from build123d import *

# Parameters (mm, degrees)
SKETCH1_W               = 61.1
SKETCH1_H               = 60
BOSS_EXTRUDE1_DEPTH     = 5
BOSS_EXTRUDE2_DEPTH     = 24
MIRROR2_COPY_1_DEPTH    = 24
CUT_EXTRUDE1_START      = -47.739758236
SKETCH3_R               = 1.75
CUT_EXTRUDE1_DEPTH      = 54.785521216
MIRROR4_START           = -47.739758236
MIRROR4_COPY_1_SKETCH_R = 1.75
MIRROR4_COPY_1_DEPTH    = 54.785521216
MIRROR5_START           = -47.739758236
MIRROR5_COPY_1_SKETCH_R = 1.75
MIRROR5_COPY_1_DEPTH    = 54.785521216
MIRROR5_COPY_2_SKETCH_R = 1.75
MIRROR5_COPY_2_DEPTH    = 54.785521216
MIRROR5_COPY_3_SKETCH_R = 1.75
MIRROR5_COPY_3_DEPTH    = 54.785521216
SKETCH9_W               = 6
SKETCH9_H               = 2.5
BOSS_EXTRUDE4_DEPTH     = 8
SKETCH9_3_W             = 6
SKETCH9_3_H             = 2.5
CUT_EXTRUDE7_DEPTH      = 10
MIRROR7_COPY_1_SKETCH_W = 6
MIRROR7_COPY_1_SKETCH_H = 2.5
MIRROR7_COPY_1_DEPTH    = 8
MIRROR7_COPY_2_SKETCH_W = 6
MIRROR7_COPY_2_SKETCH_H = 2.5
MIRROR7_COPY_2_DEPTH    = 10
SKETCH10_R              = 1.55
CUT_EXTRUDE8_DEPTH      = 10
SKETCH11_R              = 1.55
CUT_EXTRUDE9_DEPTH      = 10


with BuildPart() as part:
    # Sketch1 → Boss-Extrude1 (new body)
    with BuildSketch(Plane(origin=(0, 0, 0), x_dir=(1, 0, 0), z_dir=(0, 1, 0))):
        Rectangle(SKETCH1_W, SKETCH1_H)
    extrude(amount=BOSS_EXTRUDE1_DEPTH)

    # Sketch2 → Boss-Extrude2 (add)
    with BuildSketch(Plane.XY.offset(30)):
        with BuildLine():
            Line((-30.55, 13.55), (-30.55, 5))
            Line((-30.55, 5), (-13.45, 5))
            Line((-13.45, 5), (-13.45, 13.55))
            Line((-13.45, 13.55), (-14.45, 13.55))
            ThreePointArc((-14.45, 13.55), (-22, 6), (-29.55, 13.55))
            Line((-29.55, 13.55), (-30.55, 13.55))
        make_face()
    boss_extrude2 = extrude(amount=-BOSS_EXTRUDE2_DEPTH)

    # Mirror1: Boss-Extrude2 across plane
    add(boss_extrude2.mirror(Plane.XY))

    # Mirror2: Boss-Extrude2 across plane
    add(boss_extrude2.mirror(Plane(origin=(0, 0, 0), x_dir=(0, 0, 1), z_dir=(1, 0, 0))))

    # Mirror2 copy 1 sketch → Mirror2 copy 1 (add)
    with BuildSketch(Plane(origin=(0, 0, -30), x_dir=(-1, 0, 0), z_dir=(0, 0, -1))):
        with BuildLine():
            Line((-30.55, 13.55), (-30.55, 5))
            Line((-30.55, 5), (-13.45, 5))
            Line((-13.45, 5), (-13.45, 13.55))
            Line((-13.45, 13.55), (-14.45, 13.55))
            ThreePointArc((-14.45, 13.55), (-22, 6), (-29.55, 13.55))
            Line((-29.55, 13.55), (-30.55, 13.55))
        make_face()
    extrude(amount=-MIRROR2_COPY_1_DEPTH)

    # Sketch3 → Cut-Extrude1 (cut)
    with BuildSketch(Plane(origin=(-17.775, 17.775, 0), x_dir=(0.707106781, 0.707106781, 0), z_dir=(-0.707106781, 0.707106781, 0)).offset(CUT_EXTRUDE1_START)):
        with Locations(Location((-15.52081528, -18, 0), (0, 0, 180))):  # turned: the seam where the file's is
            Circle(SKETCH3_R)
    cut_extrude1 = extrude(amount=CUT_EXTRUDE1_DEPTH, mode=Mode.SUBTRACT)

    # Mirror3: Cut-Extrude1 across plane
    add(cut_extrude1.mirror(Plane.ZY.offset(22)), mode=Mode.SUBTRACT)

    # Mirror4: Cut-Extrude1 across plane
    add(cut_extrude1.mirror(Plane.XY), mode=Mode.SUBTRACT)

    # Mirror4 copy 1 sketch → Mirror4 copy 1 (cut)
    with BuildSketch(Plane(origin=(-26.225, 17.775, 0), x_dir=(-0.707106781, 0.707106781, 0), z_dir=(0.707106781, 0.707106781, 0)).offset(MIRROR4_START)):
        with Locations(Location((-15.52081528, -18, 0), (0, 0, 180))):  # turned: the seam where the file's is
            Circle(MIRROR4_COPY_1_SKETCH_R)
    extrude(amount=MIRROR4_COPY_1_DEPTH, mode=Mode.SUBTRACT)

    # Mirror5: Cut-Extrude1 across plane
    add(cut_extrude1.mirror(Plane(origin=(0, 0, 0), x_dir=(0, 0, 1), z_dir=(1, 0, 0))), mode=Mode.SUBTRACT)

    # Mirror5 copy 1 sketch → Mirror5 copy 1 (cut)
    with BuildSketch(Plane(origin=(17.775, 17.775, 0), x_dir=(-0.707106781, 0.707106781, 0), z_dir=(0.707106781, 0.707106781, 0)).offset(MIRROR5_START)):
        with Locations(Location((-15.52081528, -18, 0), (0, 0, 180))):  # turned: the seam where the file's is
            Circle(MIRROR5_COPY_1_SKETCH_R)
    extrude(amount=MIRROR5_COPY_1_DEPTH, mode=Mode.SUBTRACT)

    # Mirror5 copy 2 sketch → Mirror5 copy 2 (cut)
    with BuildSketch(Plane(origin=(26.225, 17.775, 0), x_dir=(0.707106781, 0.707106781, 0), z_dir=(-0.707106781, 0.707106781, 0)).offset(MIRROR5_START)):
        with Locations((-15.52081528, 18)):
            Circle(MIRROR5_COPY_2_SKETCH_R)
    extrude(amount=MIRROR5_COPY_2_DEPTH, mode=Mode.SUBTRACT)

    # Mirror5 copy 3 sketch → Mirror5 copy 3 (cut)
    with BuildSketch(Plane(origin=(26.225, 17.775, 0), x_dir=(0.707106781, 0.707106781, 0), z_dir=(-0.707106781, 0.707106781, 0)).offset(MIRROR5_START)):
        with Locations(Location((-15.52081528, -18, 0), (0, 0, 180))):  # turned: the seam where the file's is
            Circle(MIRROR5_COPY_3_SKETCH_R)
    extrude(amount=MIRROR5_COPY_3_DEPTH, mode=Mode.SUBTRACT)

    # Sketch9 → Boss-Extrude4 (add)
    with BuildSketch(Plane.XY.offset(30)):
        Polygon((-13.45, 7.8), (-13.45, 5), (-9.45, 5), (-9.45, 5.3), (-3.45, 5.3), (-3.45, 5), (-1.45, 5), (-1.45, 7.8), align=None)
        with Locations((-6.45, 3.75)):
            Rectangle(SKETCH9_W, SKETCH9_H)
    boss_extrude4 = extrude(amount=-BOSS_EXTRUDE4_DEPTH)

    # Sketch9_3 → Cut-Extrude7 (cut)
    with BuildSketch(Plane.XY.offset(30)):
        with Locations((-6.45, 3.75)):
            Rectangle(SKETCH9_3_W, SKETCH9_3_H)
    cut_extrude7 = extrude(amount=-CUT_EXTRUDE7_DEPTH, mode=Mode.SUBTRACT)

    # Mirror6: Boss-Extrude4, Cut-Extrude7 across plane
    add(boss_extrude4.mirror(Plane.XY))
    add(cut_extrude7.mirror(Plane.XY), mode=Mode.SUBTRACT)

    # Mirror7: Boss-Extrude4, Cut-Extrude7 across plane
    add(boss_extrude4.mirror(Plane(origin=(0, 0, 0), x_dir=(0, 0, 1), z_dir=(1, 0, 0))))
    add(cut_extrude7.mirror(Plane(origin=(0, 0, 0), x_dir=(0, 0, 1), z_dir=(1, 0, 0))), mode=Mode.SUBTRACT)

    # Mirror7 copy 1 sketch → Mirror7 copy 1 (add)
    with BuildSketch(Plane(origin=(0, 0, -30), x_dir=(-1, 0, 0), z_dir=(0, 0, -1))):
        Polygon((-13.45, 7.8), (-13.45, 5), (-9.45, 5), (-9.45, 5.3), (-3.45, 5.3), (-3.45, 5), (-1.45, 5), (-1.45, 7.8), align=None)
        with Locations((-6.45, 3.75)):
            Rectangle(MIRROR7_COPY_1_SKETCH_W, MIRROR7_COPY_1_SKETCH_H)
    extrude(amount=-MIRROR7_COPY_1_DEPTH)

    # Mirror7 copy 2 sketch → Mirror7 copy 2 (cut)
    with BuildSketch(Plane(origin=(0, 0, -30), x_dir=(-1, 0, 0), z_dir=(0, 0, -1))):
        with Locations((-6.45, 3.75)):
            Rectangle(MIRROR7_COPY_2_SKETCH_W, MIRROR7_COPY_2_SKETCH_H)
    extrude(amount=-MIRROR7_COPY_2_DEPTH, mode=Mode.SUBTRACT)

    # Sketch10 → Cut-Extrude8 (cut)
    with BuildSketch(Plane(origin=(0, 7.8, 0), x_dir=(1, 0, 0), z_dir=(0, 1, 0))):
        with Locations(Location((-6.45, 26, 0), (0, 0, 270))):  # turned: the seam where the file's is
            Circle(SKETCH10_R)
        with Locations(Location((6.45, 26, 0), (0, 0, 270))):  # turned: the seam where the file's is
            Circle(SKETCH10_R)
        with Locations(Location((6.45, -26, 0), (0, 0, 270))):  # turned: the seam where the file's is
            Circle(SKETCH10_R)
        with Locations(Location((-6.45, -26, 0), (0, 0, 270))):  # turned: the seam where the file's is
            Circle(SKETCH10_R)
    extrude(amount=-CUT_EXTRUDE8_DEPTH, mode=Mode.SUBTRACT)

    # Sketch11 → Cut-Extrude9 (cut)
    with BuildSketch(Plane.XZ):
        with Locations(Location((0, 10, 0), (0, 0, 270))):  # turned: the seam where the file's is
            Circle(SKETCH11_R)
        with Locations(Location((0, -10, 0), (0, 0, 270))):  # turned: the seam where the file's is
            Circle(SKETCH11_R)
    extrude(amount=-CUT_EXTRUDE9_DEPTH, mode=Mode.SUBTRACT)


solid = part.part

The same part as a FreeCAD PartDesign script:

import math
import FreeCAD as App
import Part
import Sketcher
from FreeCAD import Vector
Q = App.Units.Quantity


def add_polygon(sketch, points):
    """Adds a closed chain of lines whose ends are joined by coincident constraints."""
    first, n = sketch.GeometryCount, len(points)
    for a, b in zip(points, points[1:] + points[:1]):
        sketch.addGeometry(Part.LineSegment(App.Vector(*a, 0), App.Vector(*b, 0)), False)
    for i in range(n):
        sketch.addConstraint(Sketcher.Constraint("Coincident", first + i, 2, first + (i + 1) % n, 1))

doc = App.newDocument("Part")
params = doc.addObject("Spreadsheet::Sheet", "Params")
for row, (alias, value) in enumerate([
    ("sketch1_height", "60 mm"),
    ("sketch1_width", "61.1 mm"),
    ("pad1_length", "5 mm"),
    ("sketch2_width", "1 mm"),
    ("sketch2_radius", "7.55 mm"),
    ("sketch2_height", "8.55 mm"),
    ("pad2_length", "24 mm"),
    ("sketch3_width", "1 mm"),
    ("sketch3_radius", "7.55 mm"),
    ("sketch3_height", "8.55 mm"),
    ("pad3_length", "24 mm"),
    ("sketch4_diameter", "3.5 mm"),
    ("pocket1_length", "54.785521 mm"),
    ("sketch5_diameter", "3.5 mm"),
    ("pocket2_length", "54.785521 mm"),
    ("sketch6_diameter", "3.5 mm"),
    ("pocket3_length", "54.785521 mm"),
    ("sketch7_diameter", "3.5 mm"),
    ("pocket4_length", "54.785521 mm"),
    ("sketch8_diameter", "3.5 mm"),
    ("pocket5_length", "54.785521 mm"),
    ("sketch9_width", "4 mm"),
    ("sketch9_width2", "6 mm"),
    ("sketch9_width3", "2 mm"),
    ("sketch9_height", "2.8 mm"),
    ("sketch9_height2", "0.3 mm"),
    ("pad4_length", "8 mm"),
    ("sketch10_width", "6 mm"),
    ("sketch10_height", "2.5 mm"),
    ("pocket6_length", "10 mm"),
    ("sketch11_width", "4 mm"),
    ("sketch11_width2", "6 mm"),
    ("sketch11_width3", "2 mm"),
    ("sketch11_height", "2.8 mm"),
    ("sketch11_height2", "0.3 mm"),
    ("pad5_length", "8 mm"),
    ("sketch12_width", "6 mm"),
    ("sketch12_height", "2.5 mm"),
    ("pocket7_length", "10 mm"),
    ("sketch13_diameter", "3.1 mm"),
    ("pocket8_length", "10 mm"),
    ("sketch14_diameter", "3.1 mm"),
    ("pocket9_length", "10 mm"),
], start=1):
    params.set(f"A{row}", alias)
    params.set(f"B{row}", "=" + value)
    params.setAlias(f"B{row}", alias)

body = doc.addObject("PartDesign::Body", "Body")

# Sketch on XZ plane
sketch1 = body.newObject("Sketcher::SketchObject", "Sketch")
sketch1.AttachmentSupport = (doc.getObject("XZ_Plane"), [""])
sketch1.MapMode = "FlatFace"
add_polygon(sketch1, [(-30.55, -30), (-30.55, 30), (30.55, 30), (30.55, -30)])  # lines 0-3
sketch1.addConstraint([
    Sketcher.Constraint("Vertical", 0),
    Sketcher.Constraint("Horizontal", 1),
    Sketcher.Constraint("Vertical", 2),
    Sketcher.Constraint("Horizontal", 3),
    Sketcher.Constraint("Symmetric", 0, 2, 2, 2, -1, 1),
    Sketcher.Constraint("DistanceY", 0, 1, 0, 2, Q("60 mm")),
    Sketcher.Constraint("DistanceX", 1, 1, 1, 2, Q("61.1 mm")),
])
sketch1.setExpression("Constraints[9]", "Params.sketch1_height")
sketch1.setExpression("Constraints[10]", "Params.sketch1_width")
pad1 = body.newObject("PartDesign::Pad", "Pad")
pad1.Profile = sketch1
pad1.setExpression("Length", "Params.pad1_length")
pad1.Reversed = True

# Sketch on XY plane
sketch2 = body.newObject("Sketcher::SketchObject", "Sketch001")
sketch2.AttachmentSupport = (doc.getObject("XY_Plane"), [""])
sketch2.MapMode = "FlatFace"
sketch2.AttachmentOffset = App.Placement(Vector(0, 0, 30), App.Rotation())
sketch2.addGeometry([
    Part.LineSegment(Vector(-30.55, 13.55, 0), Vector(-30.55, 5, 0)),  # 0
    Part.LineSegment(Vector(-30.55, 5, 0), Vector(-13.45, 5, 0)),  # 1
    Part.LineSegment(Vector(-13.45, 5, 0), Vector(-13.45, 13.55, 0)),  # 2
    Part.LineSegment(Vector(-13.45, 13.55, 0), Vector(-14.45, 13.55, 0)),  # 3
    Part.ArcOfCircle(Part.Circle(Vector(-22, 13.55, 0), Vector(0, 0, 1), 7.55), math.radians(180), math.radians(360)),  # 4
    Part.LineSegment(Vector(-29.55, 13.55, 0), Vector(-30.55, 13.55, 0)),  # 5
], False)
sketch2.addConstraint([
    Sketcher.Constraint("Coincident", 0, 2, 1, 1),
    Sketcher.Constraint("Coincident", 1, 2, 2, 1),
    Sketcher.Constraint("Coincident", 2, 2, 3, 1),
    Sketcher.Constraint("Coincident", 3, 2, 4, 2),
    Sketcher.Constraint("Coincident", 4, 1, 5, 1),
    Sketcher.Constraint("Coincident", 5, 2, 0, 1),
    Sketcher.Constraint("Vertical", 0),
    Sketcher.Constraint("Horizontal", 1),
    Sketcher.Constraint("Vertical", 2),
    Sketcher.Constraint("Horizontal", 3),
    Sketcher.Constraint("Horizontal", 5),
    Sketcher.Constraint("Horizontal", 4, 3, 2, 2),
    Sketcher.Constraint("Horizontal", 3, 2, 4, 1),
    Sketcher.Constraint("Equal", 3, 5),
    Sketcher.Constraint("DistanceX", 3, 2, 3, 1, Q("1 mm")),
    Sketcher.Constraint("Radius", 4, Q("7.55 mm")),
    Sketcher.Constraint("DistanceX", 4, 3, -1, 1, Q("22 mm")),
    Sketcher.Constraint("DistanceY", -1, 1, 0, 2, Q("5 mm")),
    Sketcher.Constraint("DistanceY", 0, 2, 0, 1, Q("8.55 mm")),
])
sketch2.setExpression("Constraints[14]", "Params.sketch2_width")
sketch2.setExpression("Constraints[15]", "Params.sketch2_radius")
sketch2.setExpression("Constraints[18]", "Params.sketch2_height")
pad2 = body.newObject("PartDesign::Pad", "Pad001")
pad2.Profile = sketch2
pad2.setExpression("Length", "Params.pad2_length")
pad2.Reversed = True
doc.recompute()

mirrored = body.newObject("PartDesign::Mirrored", "Mirrored")
mirrored.Originals = [pad2]
mirrored.MirrorPlane = (doc.getObject("XY_Plane"), [""])
body.Tip = mirrored
doc.recompute()

mirrored2 = body.newObject("PartDesign::Mirrored", "Mirrored001")
mirrored2.Originals = [pad2]
mirrored2.MirrorPlane = (doc.getObject("YZ_Plane"), [""])
body.Tip = mirrored2

# Sketch on XY plane
sketch3 = body.newObject("Sketcher::SketchObject", "Sketch002")
sketch3.AttachmentSupport = (doc.getObject("XY_Plane"), [""])
sketch3.MapMode = "FlatFace"
sketch3.AttachmentOffset = App.Placement(Vector(0, 0, -30), App.Rotation())
sketch3.addGeometry([
    Part.LineSegment(Vector(30.55, 13.55, 0), Vector(30.55, 5, 0)),  # 0
    Part.LineSegment(Vector(30.55, 5, 0), Vector(13.45, 5, 0)),  # 1
    Part.LineSegment(Vector(13.45, 5, 0), Vector(13.45, 13.55, 0)),  # 2
    Part.LineSegment(Vector(13.45, 13.55, 0), Vector(14.45, 13.55, 0)),  # 3
    Part.ArcOfCircle(Part.Circle(Vector(22, 13.55, 0), Vector(0, 0, 1), 7.55), math.radians(180), math.radians(360)),  # 4
    Part.LineSegment(Vector(29.55, 13.55, 0), Vector(30.55, 13.55, 0)),  # 5
], False)
sketch3.addConstraint([
    Sketcher.Constraint("Coincident", 0, 2, 1, 1),
    Sketcher.Constraint("Coincident", 1, 2, 2, 1),
    Sketcher.Constraint("Coincident", 2, 2, 3, 1),
    Sketcher.Constraint("Coincident", 3, 2, 4, 1),
    Sketcher.Constraint("Coincident", 4, 2, 5, 1),
    Sketcher.Constraint("Coincident", 5, 2, 0, 1),
    Sketcher.Constraint("Vertical", 0),
    Sketcher.Constraint("Horizontal", 1),
    Sketcher.Constraint("Vertical", 2),
    Sketcher.Constraint("Horizontal", 3),
    Sketcher.Constraint("Horizontal", 5),
    Sketcher.Constraint("Horizontal", 4, 3, 2, 2),
    Sketcher.Constraint("Horizontal", 3, 2, 4, 2),
    Sketcher.Constraint("Equal", 3, 5),
    Sketcher.Constraint("DistanceX", 3, 1, 3, 2, Q("1 mm")),
    Sketcher.Constraint("Radius", 4, Q("7.55 mm")),
    Sketcher.Constraint("DistanceX", -1, 1, 4, 3, Q("22 mm")),
    Sketcher.Constraint("DistanceY", -1, 1, 0, 2, Q("5 mm")),
    Sketcher.Constraint("DistanceY", 0, 2, 0, 1, Q("8.55 mm")),
])
sketch3.setExpression("Constraints[14]", "Params.sketch3_width")
sketch3.setExpression("Constraints[15]", "Params.sketch3_radius")
sketch3.setExpression("Constraints[18]", "Params.sketch3_height")
pad3 = body.newObject("PartDesign::Pad", "Pad002")
pad3.Profile = sketch3
pad3.setExpression("Length", "Params.pad3_length")

# Sketch on an angled plane
sketch4 = body.newObject("Sketcher::SketchObject", "Sketch003")
sketch4.Placement = App.Placement(Vector(15.982107, -15.982107, 0), App.Rotation(Vector(0.707106781, 0.707106781, 0), Vector(0, 0, -0.999999999), Vector(-0.707106781, 0.707106781, 0), "ZXY"))
sketch4.addGeometry(Part.Circle(Vector(-15.520815, -18, 0), Vector(0, 0, 1), 1.75), False)
sketch4.addConstraint([
    Sketcher.Constraint("Diameter", 0, Q("3.5 mm")),
    Sketcher.Constraint("DistanceY", 0, 3, -1, 1, Q("18 mm")),
    Sketcher.Constraint("DistanceX", 0, 3, -1, 1, Q("15.520815 mm")),
])
sketch4.setExpression("Constraints[0]", "Params.sketch4_diameter")
pocket1 = body.newObject("PartDesign::Pocket", "Pocket")
pocket1.Profile = sketch4
pocket1.setExpression("Length", "Params.pocket1_length")
pocket1.Reversed = True
doc.recompute()

datumplane = body.newObject("PartDesign::Plane", "DatumPlane")
datumplane.AttachmentSupport = (doc.getObject("YZ_Plane"), [""])
datumplane.MapMode = "FlatFace"
datumplane.AttachmentOffset = App.Placement(Vector(0, 0, -22), App.Rotation())
mirrored3 = body.newObject("PartDesign::Mirrored", "Mirrored002")
mirrored3.Originals = [pocket1]
mirrored3.MirrorPlane = (datumplane, [""])
body.Tip = mirrored3
doc.recompute()

mirrored4 = body.newObject("PartDesign::Mirrored", "Mirrored003")
mirrored4.Originals = [pocket1]
mirrored4.MirrorPlane = (doc.getObject("XY_Plane"), [""])
body.Tip = mirrored4

# Sketch on an angled plane
sketch5 = body.newObject("Sketcher::SketchObject", "Sketch004")
sketch5.Placement = App.Placement(Vector(-59.982107, -15.982107, 0), App.Rotation(Vector(-0.707106781, 0.707106781, 0), Vector(0, 0, 0.999999999), Vector(0.707106781, 0.707106781, 0), "ZXY"))
sketch5.addGeometry(Part.Circle(Vector(-15.520815, -18, 0), Vector(0, 0, 1), 1.75), False)
sketch5.addConstraint([
    Sketcher.Constraint("Diameter", 0, Q("3.5 mm")),
    Sketcher.Constraint("DistanceY", 0, 3, -1, 1, Q("18 mm")),
    Sketcher.Constraint("DistanceX", 0, 3, -1, 1, Q("15.520815 mm")),
])
sketch5.setExpression("Constraints[0]", "Params.sketch5_diameter")
pocket2 = body.newObject("PartDesign::Pocket", "Pocket001")
pocket2.Profile = sketch5
pocket2.setExpression("Length", "Params.pocket2_length")
pocket2.Reversed = True
doc.recompute()

mirrored5 = body.newObject("PartDesign::Mirrored", "Mirrored004")
mirrored5.Originals = [pocket1]
mirrored5.MirrorPlane = (doc.getObject("YZ_Plane"), [""])
body.Tip = mirrored5

# Sketch on an angled plane
sketch6 = body.newObject("Sketcher::SketchObject", "Sketch005")
sketch6.Placement = App.Placement(Vector(-15.982107, -15.982107, 0), App.Rotation(Vector(-0.707106781, 0.707106781, 0), Vector(0, 0, 0.999999999), Vector(0.707106781, 0.707106781, 0), "ZXY"))
sketch6.addGeometry(Part.Circle(Vector(-15.520815, -18, 0), Vector(0, 0, 1), 1.75), False)
sketch6.addConstraint([
    Sketcher.Constraint("Diameter", 0, Q("3.5 mm")),
    Sketcher.Constraint("DistanceY", 0, 3, -1, 1, Q("18 mm")),
    Sketcher.Constraint("DistanceX", 0, 3, -1, 1, Q("15.520815 mm")),
])
sketch6.setExpression("Constraints[0]", "Params.sketch6_diameter")
pocket3 = body.newObject("PartDesign::Pocket", "Pocket002")
pocket3.Profile = sketch6
pocket3.setExpression("Length", "Params.pocket3_length")
pocket3.Reversed = True

# Sketch on an angled plane
sketch7 = body.newObject("Sketcher::SketchObject", "Sketch006")
sketch7.Placement = App.Placement(Vector(59.982107, -15.982107, 0), App.Rotation(Vector(0.707106781, 0.707106781, 0), Vector(0, 0, -0.999999999), Vector(-0.707106781, 0.707106781, 0), "ZXY"))
sketch7.addGeometry(Part.Circle(Vector(-15.520815, 18, 0), Vector(0, 0, 1), 1.75), False)
sketch7.addConstraint([
    Sketcher.Constraint("Diameter", 0, Q("3.5 mm")),
    Sketcher.Constraint("DistanceY", -1, 1, 0, 3, Q("18 mm")),
    Sketcher.Constraint("DistanceX", 0, 3, -1, 1, Q("15.520815 mm")),
])
sketch7.setExpression("Constraints[0]", "Params.sketch7_diameter")
pocket4 = body.newObject("PartDesign::Pocket", "Pocket003")
pocket4.Profile = sketch7
pocket4.setExpression("Length", "Params.pocket4_length")
pocket4.Reversed = True

# Sketch on an angled plane
sketch8 = body.newObject("Sketcher::SketchObject", "Sketch007")
sketch8.Placement = App.Placement(Vector(59.982107, -15.982107, 0), App.Rotation(Vector(0.707106781, 0.707106781, 0), Vector(0, 0, -0.999999999), Vector(-0.707106781, 0.707106781, 0), "ZXY"))
sketch8.addGeometry(Part.Circle(Vector(-15.520815, -18, 0), Vector(0, 0, 1), 1.75), False)
sketch8.addConstraint([
    Sketcher.Constraint("Diameter", 0, Q("3.5 mm")),
    Sketcher.Constraint("DistanceY", 0, 3, -1, 1, Q("18 mm")),
    Sketcher.Constraint("DistanceX", 0, 3, -1, 1, Q("15.520815 mm")),
])
sketch8.setExpression("Constraints[0]", "Params.sketch8_diameter")
pocket5 = body.newObject("PartDesign::Pocket", "Pocket004")
pocket5.Profile = sketch8
pocket5.setExpression("Length", "Params.pocket5_length")
pocket5.Reversed = True

# Sketch on XY plane
sketch9 = body.newObject("Sketcher::SketchObject", "Sketch008")
sketch9.AttachmentSupport = (doc.getObject("XY_Plane"), [""])
sketch9.MapMode = "FlatFace"
sketch9.AttachmentOffset = App.Placement(Vector(0, 0, 30), App.Rotation())
add_polygon(sketch9, [(-13.45, 7.8), (-13.45, 5), (-9.45, 5), (-9.45, 5.3), (-3.45, 5.3), (-3.45, 5), (-1.45, 5), (-1.45, 7.8)])  # lines 0-7
add_polygon(sketch9, [(-9.45, 5), (-9.45, 2.5), (-3.45, 2.5), (-3.45, 5)])  # lines 8-11
sketch9.addConstraint([
    Sketcher.Constraint("Vertical", 0),
    Sketcher.Constraint("Horizontal", 1),
    Sketcher.Constraint("Vertical", 2),
    Sketcher.Constraint("Horizontal", 3),
    Sketcher.Constraint("Vertical", 4),
    Sketcher.Constraint("Horizontal", 5),
    Sketcher.Constraint("Vertical", 6),
    Sketcher.Constraint("Horizontal", 7),
    Sketcher.Constraint("Vertical", 8),
    Sketcher.Constraint("Horizontal", 9),
    Sketcher.Constraint("Vertical", 10),
    Sketcher.Constraint("Horizontal", 11),
    Sketcher.Constraint("Coincident", 10, 2, 4, 2),
    Sketcher.Constraint("Coincident", 11, 2, 1, 2),
    Sketcher.Constraint("DistanceX", 1, 1, 1, 2, Q("4 mm")),
    Sketcher.Constraint("DistanceX", 3, 1, 3, 2, Q("6 mm")),
    Sketcher.Constraint("DistanceX", 5, 1, 5, 2, Q("2 mm")),
    Sketcher.Constraint("DistanceY", 0, 2, 0, 1, Q("2.8 mm")),
    Sketcher.Constraint("DistanceY", 2, 1, 2, 2, Q("0.3 mm")),
    Sketcher.Constraint("DistanceY", 8, 2, 8, 1, Q("2.5 mm")),
    Sketcher.Constraint("DistanceY", -1, 1, 0, 2, Q("5 mm")),
    Sketcher.Constraint("DistanceX", 0, 2, -1, 1, Q("13.45 mm")),
])
sketch9.setExpression("Constraints[26]", "Params.sketch9_width")
sketch9.setExpression("Constraints[27]", "Params.sketch9_width2")
sketch9.setExpression("Constraints[28]", "Params.sketch9_width3")
sketch9.setExpression("Constraints[29]", "Params.sketch9_height")
sketch9.setExpression("Constraints[30]", "Params.sketch9_height2")
pad4 = body.newObject("PartDesign::Pad", "Pad003")
pad4.Profile = sketch9
pad4.setExpression("Length", "Params.pad4_length")
pad4.Reversed = True

# Sketch on XY plane
sketch10 = body.newObject("Sketcher::SketchObject", "Sketch009")
sketch10.AttachmentSupport = (doc.getObject("XY_Plane"), [""])
sketch10.MapMode = "FlatFace"
sketch10.AttachmentOffset = App.Placement(Vector(0, 0, 30), App.Rotation())
add_polygon(sketch10, [(-9.45, 5), (-9.45, 2.5), (-3.45, 2.5), (-3.45, 5)])  # lines 0-3
sketch10.addConstraint([
    Sketcher.Constraint("Vertical", 0),
    Sketcher.Constraint("Horizontal", 1),
    Sketcher.Constraint("Vertical", 2),
    Sketcher.Constraint("Horizontal", 3),
    Sketcher.Constraint("DistanceX", 1, 1, 1, 2, Q("6 mm")),
    Sketcher.Constraint("DistanceY", 0, 2, 0, 1, Q("2.5 mm")),
    Sketcher.Constraint("DistanceY", -1, 1, 2, 2, Q("5 mm")),
    Sketcher.Constraint("DistanceX", 0, 2, -1, 1, Q("9.45 mm")),
])
sketch10.setExpression("Constraints[8]", "Params.sketch10_width")
sketch10.setExpression("Constraints[9]", "Params.sketch10_height")
pocket6 = body.newObject("PartDesign::Pocket", "Pocket005")
pocket6.Profile = sketch10
pocket6.setExpression("Length", "Params.pocket6_length")
doc.recompute()

mirrored6 = body.newObject("PartDesign::Mirrored", "Mirrored005")
mirrored6.Originals = [pad4, pocket6]
mirrored6.MirrorPlane = (doc.getObject("XY_Plane"), [""])
body.Tip = mirrored6
doc.recompute()

mirrored7 = body.newObject("PartDesign::Mirrored", "Mirrored006")
mirrored7.Originals = [pad4, pocket6]
mirrored7.MirrorPlane = (doc.getObject("YZ_Plane"), [""])
body.Tip = mirrored7

# Sketch on XY plane
sketch11 = body.newObject("Sketcher::SketchObject", "Sketch010")
sketch11.AttachmentSupport = (doc.getObject("XY_Plane"), [""])
sketch11.MapMode = "FlatFace"
sketch11.AttachmentOffset = App.Placement(Vector(0, 0, -30), App.Rotation())
add_polygon(sketch11, [(13.45, 7.8), (13.45, 5), (9.45, 5), (9.45, 5.3), (3.45, 5.3), (3.45, 5), (1.45, 5), (1.45, 7.8)])  # lines 0-7
add_polygon(sketch11, [(9.45, 5), (9.45, 2.5), (3.45, 2.5), (3.45, 5)])  # lines 8-11
sketch11.addConstraint([
    Sketcher.Constraint("Vertical", 0),
    Sketcher.Constraint("Horizontal", 1),
    Sketcher.Constraint("Vertical", 2),
    Sketcher.Constraint("Horizontal", 3),
    Sketcher.Constraint("Vertical", 4),
    Sketcher.Constraint("Horizontal", 5),
    Sketcher.Constraint("Vertical", 6),
    Sketcher.Constraint("Horizontal", 7),
    Sketcher.Constraint("Vertical", 8),
    Sketcher.Constraint("Horizontal", 9),
    Sketcher.Constraint("Vertical", 10),
    Sketcher.Constraint("Horizontal", 11),
    Sketcher.Constraint("Coincident", 10, 2, 4, 2),
    Sketcher.Constraint("Coincident", 11, 2, 1, 2),
    Sketcher.Constraint("DistanceX", 1, 2, 1, 1, Q("4 mm")),
    Sketcher.Constraint("DistanceX", 3, 2, 3, 1, Q("6 mm")),
    Sketcher.Constraint("DistanceX", 5, 2, 5, 1, Q("2 mm")),
    Sketcher.Constraint("DistanceY", 0, 2, 0, 1, Q("2.8 mm")),
    Sketcher.Constraint("DistanceY", 2, 1, 2, 2, Q("0.3 mm")),
    Sketcher.Constraint("DistanceY", 8, 2, 8, 1, Q("2.5 mm")),
    Sketcher.Constraint("DistanceY", -1, 1, 0, 2, Q("5 mm")),
    Sketcher.Constraint("DistanceX", -1, 1, 0, 2, Q("13.45 mm")),
])
sketch11.setExpression("Constraints[26]", "Params.sketch11_width")
sketch11.setExpression("Constraints[27]", "Params.sketch11_width2")
sketch11.setExpression("Constraints[28]", "Params.sketch11_width3")
sketch11.setExpression("Constraints[29]", "Params.sketch11_height")
sketch11.setExpression("Constraints[30]", "Params.sketch11_height2")
pad5 = body.newObject("PartDesign::Pad", "Pad004")
pad5.Profile = sketch11
pad5.setExpression("Length", "Params.pad5_length")

# Sketch on XY plane
sketch12 = body.newObject("Sketcher::SketchObject", "Sketch011")
sketch12.AttachmentSupport = (doc.getObject("XY_Plane"), [""])
sketch12.MapMode = "FlatFace"
sketch12.AttachmentOffset = App.Placement(Vector(0, 0, -30), App.Rotation())
add_polygon(sketch12, [(9.45, 5), (9.45, 2.5), (3.45, 2.5), (3.45, 5)])  # lines 0-3
sketch12.addConstraint([
    Sketcher.Constraint("Vertical", 0),
    Sketcher.Constraint("Horizontal", 1),
    Sketcher.Constraint("Vertical", 2),
    Sketcher.Constraint("Horizontal", 3),
    Sketcher.Constraint("DistanceX", 1, 2, 1, 1, Q("6 mm")),
    Sketcher.Constraint("DistanceY", 0, 2, 0, 1, Q("2.5 mm")),
    Sketcher.Constraint("DistanceY", -1, 1, 2, 2, Q("5 mm")),
    Sketcher.Constraint("DistanceX", -1, 1, 0, 2, Q("9.45 mm")),
])
sketch12.setExpression("Constraints[8]", "Params.sketch12_width")
sketch12.setExpression("Constraints[9]", "Params.sketch12_height")
pocket7 = body.newObject("PartDesign::Pocket", "Pocket006")
pocket7.Profile = sketch12
pocket7.setExpression("Length", "Params.pocket7_length")
pocket7.Reversed = True

# Sketch on XZ plane
sketch13 = body.newObject("Sketcher::SketchObject", "Sketch012")
sketch13.AttachmentSupport = (doc.getObject("XZ_Plane"), [""])
sketch13.MapMode = "FlatFace"
sketch13.AttachmentOffset = App.Placement(Vector(0, 0, -7.8), App.Rotation())
sketch13.addGeometry([
    Part.Circle(Vector(-6.45, -26, 0), Vector(0, 0, 1), 1.55),
    Part.Circle(Vector(6.45, -26, 0), Vector(0, 0, 1), 1.55),
    Part.Circle(Vector(6.45, 26, 0), Vector(0, 0, 1), 1.55),
    Part.Circle(Vector(-6.45, 26, 0), Vector(0, 0, 1), 1.55),
], False)
sketch13.addConstraint([
    Sketcher.Constraint("Equal", 0, 1),
    Sketcher.Constraint("Equal", 1, 2),
    Sketcher.Constraint("Equal", 2, 3),
    Sketcher.Constraint("Symmetric", 0, 3, 2, 3, -1, 1),
    Sketcher.Constraint("Symmetric", 1, 3, 3, 3, -1, 1),
    Sketcher.Constraint("Symmetric", 0, 3, 1, 3, -2),
    Sketcher.Constraint("Diameter", 0, Q("3.1 mm")),
    Sketcher.Constraint("DistanceY", 0, 3, -1, 1, Q("26 mm")),
    Sketcher.Constraint("DistanceX", 0, 3, 1, 3, Q("12.9 mm")),
])
sketch13.setExpression("Constraints[6]", "Params.sketch13_diameter")
pocket8 = body.newObject("PartDesign::Pocket", "Pocket007")
pocket8.Profile = sketch13
pocket8.setExpression("Length", "Params.pocket8_length")
pocket8.Reversed = True

# Sketch on XZ plane
sketch14 = body.newObject("Sketcher::SketchObject", "Sketch013")
sketch14.AttachmentSupport = (doc.getObject("XZ_Plane"), [""])
sketch14.MapMode = "FlatFace"
sketch14.addGeometry([
    Part.Circle(Vector(0, 10, 0), Vector(0, 0, 1), 1.55),
    Part.Circle(Vector(0, -10, 0), Vector(0, 0, 1), 1.55),
], False)
sketch14.addConstraint([
    Sketcher.Constraint("Equal", 0, 1),
    Sketcher.Constraint("Symmetric", 0, 3, 1, 3, -1, 1),
    Sketcher.Constraint("PointOnObject", 0, 3, -2),
    Sketcher.Constraint("Diameter", 0, Q("3.1 mm")),
    Sketcher.Constraint("DistanceY", -1, 1, 0, 3, Q("10 mm")),
])
sketch14.setExpression("Constraints[3]", "Params.sketch14_diameter")
pocket9 = body.newObject("PartDesign::Pocket", "Pocket008")
pocket9.Profile = sketch14
pocket9.setExpression("Length", "Params.pocket9_length")

doc.recompute()
